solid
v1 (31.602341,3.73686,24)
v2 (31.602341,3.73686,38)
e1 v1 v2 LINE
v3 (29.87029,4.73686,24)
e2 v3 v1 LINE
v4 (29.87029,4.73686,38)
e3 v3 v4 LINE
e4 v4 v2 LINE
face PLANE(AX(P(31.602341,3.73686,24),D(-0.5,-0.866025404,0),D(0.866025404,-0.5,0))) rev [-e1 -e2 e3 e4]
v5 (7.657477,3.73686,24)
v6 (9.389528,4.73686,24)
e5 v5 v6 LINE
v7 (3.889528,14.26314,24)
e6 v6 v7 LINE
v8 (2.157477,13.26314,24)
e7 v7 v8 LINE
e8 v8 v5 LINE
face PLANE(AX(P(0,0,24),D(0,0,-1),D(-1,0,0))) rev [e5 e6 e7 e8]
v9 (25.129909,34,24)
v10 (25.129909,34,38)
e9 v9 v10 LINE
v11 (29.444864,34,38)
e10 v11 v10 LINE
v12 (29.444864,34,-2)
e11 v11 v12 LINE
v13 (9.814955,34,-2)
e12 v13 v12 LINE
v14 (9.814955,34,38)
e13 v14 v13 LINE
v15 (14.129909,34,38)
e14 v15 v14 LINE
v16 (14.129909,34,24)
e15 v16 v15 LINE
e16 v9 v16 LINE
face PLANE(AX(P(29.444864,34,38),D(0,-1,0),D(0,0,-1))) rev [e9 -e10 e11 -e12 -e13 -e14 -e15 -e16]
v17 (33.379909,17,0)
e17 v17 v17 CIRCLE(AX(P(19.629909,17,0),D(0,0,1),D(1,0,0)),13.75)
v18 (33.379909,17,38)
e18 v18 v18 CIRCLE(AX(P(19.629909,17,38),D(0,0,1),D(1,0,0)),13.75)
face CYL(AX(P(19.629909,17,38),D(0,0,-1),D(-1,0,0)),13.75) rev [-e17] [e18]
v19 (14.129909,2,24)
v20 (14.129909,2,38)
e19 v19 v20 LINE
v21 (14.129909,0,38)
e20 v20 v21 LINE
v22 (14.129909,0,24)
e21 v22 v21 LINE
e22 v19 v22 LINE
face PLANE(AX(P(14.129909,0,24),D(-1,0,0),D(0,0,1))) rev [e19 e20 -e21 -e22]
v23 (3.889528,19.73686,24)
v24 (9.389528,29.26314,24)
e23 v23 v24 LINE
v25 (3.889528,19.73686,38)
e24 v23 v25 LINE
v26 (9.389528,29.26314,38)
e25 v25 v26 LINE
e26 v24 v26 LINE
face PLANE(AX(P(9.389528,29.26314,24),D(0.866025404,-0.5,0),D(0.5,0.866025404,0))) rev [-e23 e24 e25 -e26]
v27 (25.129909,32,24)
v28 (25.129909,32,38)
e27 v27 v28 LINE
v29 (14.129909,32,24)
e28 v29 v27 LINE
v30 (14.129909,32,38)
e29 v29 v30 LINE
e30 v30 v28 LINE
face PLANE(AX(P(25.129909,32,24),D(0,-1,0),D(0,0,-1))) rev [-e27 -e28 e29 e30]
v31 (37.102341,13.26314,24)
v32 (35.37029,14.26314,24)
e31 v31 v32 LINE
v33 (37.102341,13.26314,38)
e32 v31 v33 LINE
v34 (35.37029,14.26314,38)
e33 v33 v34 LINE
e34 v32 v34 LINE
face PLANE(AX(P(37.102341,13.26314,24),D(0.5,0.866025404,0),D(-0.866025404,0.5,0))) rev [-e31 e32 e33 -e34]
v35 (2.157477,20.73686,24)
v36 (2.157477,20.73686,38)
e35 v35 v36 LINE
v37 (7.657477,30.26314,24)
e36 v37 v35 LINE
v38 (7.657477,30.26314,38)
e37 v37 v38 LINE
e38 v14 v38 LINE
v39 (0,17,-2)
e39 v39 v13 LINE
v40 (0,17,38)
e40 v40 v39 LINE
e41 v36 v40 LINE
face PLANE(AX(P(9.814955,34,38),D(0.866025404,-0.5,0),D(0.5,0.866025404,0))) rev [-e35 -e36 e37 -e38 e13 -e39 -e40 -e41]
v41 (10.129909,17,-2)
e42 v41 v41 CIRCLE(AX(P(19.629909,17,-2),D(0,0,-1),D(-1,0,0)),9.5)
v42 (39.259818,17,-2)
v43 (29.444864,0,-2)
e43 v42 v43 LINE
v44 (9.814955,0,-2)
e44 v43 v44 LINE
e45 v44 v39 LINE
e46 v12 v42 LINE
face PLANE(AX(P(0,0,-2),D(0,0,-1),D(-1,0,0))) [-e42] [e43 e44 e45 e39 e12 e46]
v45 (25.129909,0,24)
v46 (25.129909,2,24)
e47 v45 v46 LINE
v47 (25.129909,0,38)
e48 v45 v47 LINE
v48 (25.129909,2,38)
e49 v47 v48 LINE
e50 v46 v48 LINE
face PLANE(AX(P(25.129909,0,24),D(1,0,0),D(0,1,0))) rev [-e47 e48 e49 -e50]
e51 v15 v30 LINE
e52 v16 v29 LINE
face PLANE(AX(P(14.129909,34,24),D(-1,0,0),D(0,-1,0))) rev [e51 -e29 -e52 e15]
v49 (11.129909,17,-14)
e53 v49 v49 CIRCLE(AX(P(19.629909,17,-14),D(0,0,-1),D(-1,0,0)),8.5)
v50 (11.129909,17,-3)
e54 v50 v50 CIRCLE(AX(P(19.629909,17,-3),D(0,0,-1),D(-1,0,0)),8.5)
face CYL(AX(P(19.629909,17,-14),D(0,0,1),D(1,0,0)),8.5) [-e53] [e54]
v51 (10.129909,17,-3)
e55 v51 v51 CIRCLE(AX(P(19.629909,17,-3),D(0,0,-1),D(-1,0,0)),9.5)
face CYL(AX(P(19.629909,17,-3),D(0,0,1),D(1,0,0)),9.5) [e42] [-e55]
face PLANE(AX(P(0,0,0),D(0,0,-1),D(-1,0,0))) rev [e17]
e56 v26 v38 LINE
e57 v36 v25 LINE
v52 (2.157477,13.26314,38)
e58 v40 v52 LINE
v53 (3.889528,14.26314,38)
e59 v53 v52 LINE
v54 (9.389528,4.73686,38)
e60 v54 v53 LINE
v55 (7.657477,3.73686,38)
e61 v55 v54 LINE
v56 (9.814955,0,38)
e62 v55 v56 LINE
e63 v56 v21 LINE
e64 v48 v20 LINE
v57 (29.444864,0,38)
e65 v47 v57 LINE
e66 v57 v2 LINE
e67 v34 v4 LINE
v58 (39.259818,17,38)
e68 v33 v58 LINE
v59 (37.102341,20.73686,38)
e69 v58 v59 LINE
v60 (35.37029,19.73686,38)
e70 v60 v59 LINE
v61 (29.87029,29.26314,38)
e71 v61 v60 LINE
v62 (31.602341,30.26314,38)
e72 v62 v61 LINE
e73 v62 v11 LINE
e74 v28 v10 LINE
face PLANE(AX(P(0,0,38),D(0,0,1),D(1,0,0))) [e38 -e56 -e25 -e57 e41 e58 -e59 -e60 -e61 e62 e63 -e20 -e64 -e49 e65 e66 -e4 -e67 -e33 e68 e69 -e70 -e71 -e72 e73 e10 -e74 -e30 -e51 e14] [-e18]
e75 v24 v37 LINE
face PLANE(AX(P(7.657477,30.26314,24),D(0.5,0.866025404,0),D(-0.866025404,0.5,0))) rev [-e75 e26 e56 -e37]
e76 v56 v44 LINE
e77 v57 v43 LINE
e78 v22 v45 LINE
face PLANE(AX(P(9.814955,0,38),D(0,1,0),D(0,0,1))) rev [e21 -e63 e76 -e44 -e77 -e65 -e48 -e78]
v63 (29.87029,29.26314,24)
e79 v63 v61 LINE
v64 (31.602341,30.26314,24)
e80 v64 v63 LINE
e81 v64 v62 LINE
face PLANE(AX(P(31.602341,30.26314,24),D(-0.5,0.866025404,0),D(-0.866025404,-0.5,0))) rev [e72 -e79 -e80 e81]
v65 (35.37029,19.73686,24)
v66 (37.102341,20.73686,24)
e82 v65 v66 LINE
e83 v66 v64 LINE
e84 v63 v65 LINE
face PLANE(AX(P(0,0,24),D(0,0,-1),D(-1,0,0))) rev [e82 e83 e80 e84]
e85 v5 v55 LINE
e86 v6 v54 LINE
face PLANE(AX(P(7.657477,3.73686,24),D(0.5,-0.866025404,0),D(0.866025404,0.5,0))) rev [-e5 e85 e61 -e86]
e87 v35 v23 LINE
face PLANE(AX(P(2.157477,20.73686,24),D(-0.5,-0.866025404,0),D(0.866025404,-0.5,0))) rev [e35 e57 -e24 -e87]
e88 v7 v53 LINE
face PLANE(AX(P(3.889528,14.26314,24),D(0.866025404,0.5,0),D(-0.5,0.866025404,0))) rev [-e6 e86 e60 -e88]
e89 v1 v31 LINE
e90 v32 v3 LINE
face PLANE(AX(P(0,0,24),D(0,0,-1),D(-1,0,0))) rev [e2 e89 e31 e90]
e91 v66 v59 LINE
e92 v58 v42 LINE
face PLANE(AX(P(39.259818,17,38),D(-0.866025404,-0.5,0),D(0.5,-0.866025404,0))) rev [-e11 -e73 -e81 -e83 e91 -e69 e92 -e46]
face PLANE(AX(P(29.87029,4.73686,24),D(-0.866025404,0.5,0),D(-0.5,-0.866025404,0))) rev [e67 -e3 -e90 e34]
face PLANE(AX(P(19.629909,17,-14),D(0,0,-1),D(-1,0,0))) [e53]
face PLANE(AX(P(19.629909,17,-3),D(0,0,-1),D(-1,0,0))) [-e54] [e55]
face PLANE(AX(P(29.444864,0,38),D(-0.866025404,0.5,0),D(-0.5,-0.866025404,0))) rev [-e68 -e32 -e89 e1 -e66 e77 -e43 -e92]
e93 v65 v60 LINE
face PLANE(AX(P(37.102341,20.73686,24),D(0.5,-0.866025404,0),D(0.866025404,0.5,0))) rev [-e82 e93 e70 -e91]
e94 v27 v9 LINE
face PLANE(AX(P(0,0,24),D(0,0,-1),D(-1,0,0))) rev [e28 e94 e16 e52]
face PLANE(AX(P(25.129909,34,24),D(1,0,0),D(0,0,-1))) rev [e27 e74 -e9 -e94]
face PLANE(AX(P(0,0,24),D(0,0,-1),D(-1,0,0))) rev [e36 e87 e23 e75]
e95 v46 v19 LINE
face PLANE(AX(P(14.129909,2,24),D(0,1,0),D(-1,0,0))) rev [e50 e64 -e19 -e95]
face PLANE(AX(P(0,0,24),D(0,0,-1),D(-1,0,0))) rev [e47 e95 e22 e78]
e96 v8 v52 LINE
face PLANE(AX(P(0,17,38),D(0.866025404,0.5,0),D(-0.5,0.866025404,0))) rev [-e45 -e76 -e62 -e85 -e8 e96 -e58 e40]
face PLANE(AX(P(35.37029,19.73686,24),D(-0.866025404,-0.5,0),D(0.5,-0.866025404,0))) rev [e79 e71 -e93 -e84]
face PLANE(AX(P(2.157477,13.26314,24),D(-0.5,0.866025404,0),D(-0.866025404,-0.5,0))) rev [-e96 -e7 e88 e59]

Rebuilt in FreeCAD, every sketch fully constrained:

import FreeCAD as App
import Part
import Sketcher
from FreeCAD import Vector
Q = App.Units.Quantity


def add_polygon(sketch, points):
    """Adds a closed chain of lines whose ends are joined by coincident constraints."""
    first, n = sketch.GeometryCount, len(points)
    for a, b in zip(points, points[1:] + points[:1]):
        sketch.addGeometry(Part.LineSegment(App.Vector(*a, 0), App.Vector(*b, 0)), False)
    for i in range(n):
        sketch.addConstraint(Sketcher.Constraint("Coincident", first + i, 2, first + (i + 1) % n, 1))

doc = App.newDocument("Part")
params = doc.addObject("Spreadsheet::Sheet", "Params")
for row, (alias, value) in enumerate([
    ("sketch1_diameter", "27.5 mm"),
    ("pad1_length", "38 mm"),
    ("sketch2_width", "11 mm"),
    ("sketch2_height", "2 mm"),
    ("sketch2_length", "11 mm"),
    ("sketch2_length2", "2 mm"),
    ("pocket1_length", "14 mm"),
    ("pad2_length", "2 mm"),
    ("sketch4_diameter", "17 mm"),
    ("pad3_length", "12 mm"),
    ("sketch5_diameter", "19 mm"),
    ("pad4_length", "1 mm"),
], start=1):
    params.set(f"A{row}", alias)
    params.set(f"B{row}", "=" + value)
    params.setAlias(f"B{row}", alias)

body = doc.addObject("PartDesign::Body", "Body")

sketch1 = body.newObject("Sketcher::SketchObject", "Sketch")
sketch1.AttachmentSupport = (doc.getObject("XY_Plane"), [""])
sketch1.MapMode = "FlatFace"
add_polygon(sketch1, [(39, 17), (29, 34), (10, 34), (0, 17), (10, 0), (29, 0)])
sketch1.addGeometry(Part.Circle(Vector(20, 17, 0), Vector(0, 0, 1), 14), False)
sketch1.addConstraint(Sketcher.Constraint("Horizontal", 1))
sketch1.addConstraint(Sketcher.Constraint("Horizontal", 4))
sketch1.addConstraint(Sketcher.Constraint("PointOnObject", 2, 2, -2))
sketch1.addConstraint(Sketcher.Constraint("PointOnObject", 3, 2, -1))
sketch1.addConstraint(Sketcher.Constraint("Parallel", 0, 3))
sketch1.addConstraint(Sketcher.Constraint("Parallel", 2, 5))
sketch1.addConstraint(Sketcher.Constraint("Horizontal", 6, 3, 2, 2))
sketch1.addConstraint(Sketcher.Constraint("Horizontal", 2, 2, 5, 2))
sketch1.addConstraint(Sketcher.Constraint("Vertical", 1, 2, 3, 2))
sketch1.addConstraint(Sketcher.Constraint("Vertical", 0, 2, 4, 2))
sketch1.addConstraint(Sketcher.Constraint("Diameter", 6, Q("27.5 mm")))
sketch1.addConstraint(Sketcher.Constraint("Angle", 0, Q("120 deg")))
sketch1.addConstraint(Sketcher.Constraint("DistanceY", -1, 1, 6, 3, Q("17 mm")))
sketch1.addConstraint(Sketcher.Constraint("DistanceX", 1, 2, 1, 1, Q("19.629909 mm")))
sketch1.addConstraint(Sketcher.Constraint("DistanceX", -1, 1, 6, 3, Q("19.629909 mm")))
sketch1.setExpression("Constraints[16]", "Params.sketch1_diameter")
pad1 = body.newObject("PartDesign::Pad", "Pad")
pad1.Profile = sketch1
pad1.setExpression("Length", "Params.pad1_length")

sketch2 = body.newObject("Sketcher::SketchObject", "Sketch001")
sketch2.AttachmentSupport = (doc.getObject("XY_Plane"), [""])
sketch2.MapMode = "FlatFace"
sketch2.AttachmentOffset = App.Placement(Vector(0, 0, 38), App.Rotation())
add_polygon(sketch2, [(14.1, 2), (14.1, 0), (25.1, 0), (25.1, 2)])
add_polygon(sketch2, [(2.2, 13.3), (7.7, 3.7), (9.4, 4.7), (3.9, 14.3)])
add_polygon(sketch2, [(7.7, 30.3), (2.2, 20.7), (3.9, 19.7), (9.4, 29.3)])
add_polygon(sketch2, [(14.1, 34), (14.1, 32), (25.1, 32), (25.1, 34)])
add_polygon(sketch2, [(37.1, 20.7), (31.6, 30.3), (29.9, 29.3), (35.4, 19.7)])
add_polygon(sketch2, [(31.6, 3.7), (37.1, 13.3), (35.4, 14.3), (29.9, 4.7)])
sketch2.addConstraint(Sketcher.Constraint("Vertical", 0))
sketch2.addConstraint(Sketcher.Constraint("Horizontal", 1))
sketch2.addConstraint(Sketcher.Constraint("Vertical", 2))
sketch2.addConstraint(Sketcher.Constraint("Horizontal", 3))
sketch2.addConstraint(Sketcher.Constraint("Vertical", 12))
sketch2.addConstraint(Sketcher.Constraint("Horizontal", 13))
sketch2.addConstraint(Sketcher.Constraint("Vertical", 14))
sketch2.addConstraint(Sketcher.Constraint("Horizontal", 15))
sketch2.addConstraint(Sketcher.Constraint("PointOnObject", 0, 2, -1))
sketch2.addConstraint(Sketcher.Constraint("Perpendicular", 4, 5))
sketch2.addConstraint(Sketcher.Constraint("Perpendicular", 5, 6))
sketch2.addConstraint(Sketcher.Constraint("Perpendicular", 6, 7))
sketch2.addConstraint(Sketcher.Constraint("Perpendicular", 8, 9))
sketch2.addConstraint(Sketcher.Constraint("Perpendicular", 9, 10))
sketch2.addConstraint(Sketcher.Constraint("Perpendicular", 10, 11))
sketch2.addConstraint(Sketcher.Constraint("Perpendicular", 7, 16))
sketch2.addConstraint(Sketcher.Constraint("Perpendicular", 16, 17))
sketch2.addConstraint(Sketcher.Constraint("Perpendicular", 17, 18))
sketch2.addConstraint(Sketcher.Constraint("Perpendicular", 18, 19))
sketch2.addConstraint(Sketcher.Constraint("Perpendicular", 11, 20))
sketch2.addConstraint(Sketcher.Constraint("Perpendicular", 20, 21))
sketch2.addConstraint(Sketcher.Constraint("Perpendicular", 21, 22))
sketch2.addConstraint(Sketcher.Constraint("Perpendicular", 22, 23))
sketch2.addConstraint(Sketcher.Constraint("Horizontal", 11, 2, 16, 2))
sketch2.addConstraint(Sketcher.Constraint("Horizontal", 10, 2, 17, 2))
sketch2.addConstraint(Sketcher.Constraint("Horizontal", 9, 2, 18, 2))
sketch2.addConstraint(Sketcher.Constraint("Horizontal", 7, 2, 20, 2))
sketch2.addConstraint(Sketcher.Constraint("Horizontal", 6, 2, 21, 2))
sketch2.addConstraint(Sketcher.Constraint("Horizontal", 5, 2, 22, 2))
sketch2.addConstraint(Sketcher.Constraint("Vertical", 7, 2, 8, 2))
sketch2.addConstraint(Sketcher.Constraint("Vertical", 6, 2, 9, 2))
sketch2.addConstraint(Sketcher.Constraint("Vertical", 5, 2, 10, 2))
sketch2.addConstraint(Sketcher.Constraint("Vertical", 3, 2, 12, 2))
sketch2.addConstraint(Sketcher.Constraint("Vertical", 2, 2, 13, 2))
sketch2.addConstraint(Sketcher.Constraint("Vertical", 19, 2, 20, 2))
sketch2.addConstraint(Sketcher.Constraint("Vertical", 18, 2, 21, 2))
sketch2.addConstraint(Sketcher.Constraint("Equal", 2, 12))
sketch2.addConstraint(Sketcher.Constraint("DistanceX", 1, 1, 1, 2, Q("11 mm")))
sketch2.addConstraint(Sketcher.Constraint("DistanceY", 0, 2, 0, 1, Q("2 mm")))
sketch2.addConstraint(Sketcher.Constraint("Angle", 4, Q("-60 deg")))
sketch2.addConstraint(Sketcher.Constraint("Distance", 4, Q("11 mm")))
sketch2.addConstraint(Sketcher.Constraint("Distance", 5, Q("2 mm")))
sketch2.addConstraint(Sketcher.Constraint("DistanceY", -1, 1, 12, 2, Q("32 mm")))
sketch2.addConstraint(Sketcher.Constraint("DistanceY", 5, 2, 8, 2, Q("16 mm")))
sketch2.addConstraint(Sketcher.Constraint("DistanceX", -1, 1, 0, 2, Q("14.129909 mm")))
sketch2.addConstraint(Sketcher.Constraint("DistanceY", -1, 1, 4, 2, Q("3.73686 mm")))
sketch2.addConstraint(Sketcher.Constraint("DistanceX", -1, 1, 5, 2, Q("9.389528 mm")))
sketch2.addConstraint(Sketcher.Constraint("DistanceX", -1, 1, 16, 2, Q("31.602341 mm")))
sketch2.setExpression("Constraints[61]", "Params.sketch2_width")
sketch2.setExpression("Constraints[62]", "Params.sketch2_height")
sketch2.setExpression("Constraints[64]", "Params.sketch2_length")
sketch2.setExpression("Constraints[65]", "Params.sketch2_length2")
pocket1 = body.newObject("PartDesign::Pocket", "Pocket")
pocket1.Profile = sketch2
pocket1.setExpression("Length", "Params.pocket1_length")

sketch3 = body.newObject("Sketcher::SketchObject", "Sketch002")
sketch3.AttachmentSupport = (doc.getObject("XY_Plane"), [""])
sketch3.MapMode = "FlatFace"
add_polygon(sketch3, [(39, 17), (29, 0), (10, 0), (0, 17), (10, 34), (29, 34)])
sketch3.addConstraint(Sketcher.Constraint("Horizontal", 1))
sketch3.addConstraint(Sketcher.Constraint("Horizontal", 4))
sketch3.addConstraint(Sketcher.Constraint("PointOnObject", 0, 2, -1))
sketch3.addConstraint(Sketcher.Constraint("PointOnObject", 2, 2, -2))
sketch3.addConstraint(Sketcher.Constraint("Parallel", 0, 3))
sketch3.addConstraint(Sketcher.Constraint("Parallel", 2, 5))
sketch3.addConstraint(Sketcher.Constraint("Horizontal", 2, 2, 5, 2))
sketch3.addConstraint(Sketcher.Constraint("Vertical", 1, 2, 3, 2))
sketch3.addConstraint(Sketcher.Constraint("Vertical", 0, 2, 4, 2))
sketch3.addConstraint(Sketcher.Constraint("Angle", 0, Q("-120 deg")))
sketch3.addConstraint(Sketcher.Constraint("DistanceY", -1, 1, 2, 2, Q("17 mm")))
sketch3.addConstraint(Sketcher.Constraint("DistanceX", 1, 2, 1, 1, Q("19.629909 mm")))
pad2 = body.newObject("PartDesign::Pad", "Pad001")
pad2.Profile = sketch3
pad2.setExpression("Length", "Params.pad2_length")
pad2.Reversed = True

sketch4 = body.newObject("Sketcher::SketchObject", "Sketch003")
sketch4.AttachmentSupport = (doc.getObject("XY_Plane"), [""])
sketch4.MapMode = "FlatFace"
sketch4.AttachmentOffset = App.Placement(Vector(0, 0, -2), App.Rotation())
sketch4.addGeometry(Part.Circle(Vector(20, 17, 0), Vector(0, 0, 1), 8), False)
sketch4.addConstraint(Sketcher.Constraint("Diameter", 0, Q("17 mm")))
sketch4.addConstraint(Sketcher.Constraint("DistanceY", -1, 1, 0, 3, Q("17 mm")))
sketch4.addConstraint(Sketcher.Constraint("DistanceX", -1, 1, 0, 3, Q("19.629909 mm")))
sketch4.setExpression("Constraints[0]", "Params.sketch4_diameter")
pad3 = body.newObject("PartDesign::Pad", "Pad002")
pad3.Profile = sketch4
pad3.setExpression("Length", "Params.pad3_length")
pad3.Reversed = True

sketch5 = body.newObject("Sketcher::SketchObject", "Sketch004")
sketch5.AttachmentSupport = (doc.getObject("XY_Plane"), [""])
sketch5.MapMode = "FlatFace"
sketch5.AttachmentOffset = App.Placement(Vector(0, 0, -2), App.Rotation())
sketch5.addGeometry(Part.Circle(Vector(20, 17, 0), Vector(0, 0, 1), 10), False)
sketch5.addConstraint(Sketcher.Constraint("Diameter", 0, Q("19 mm")))
sketch5.addConstraint(Sketcher.Constraint("DistanceY", -1, 1, 0, 3, Q("17 mm")))
sketch5.addConstraint(Sketcher.Constraint("DistanceX", -1, 1, 0, 3, Q("19.629909 mm")))
sketch5.setExpression("Constraints[0]", "Params.sketch5_diameter")
pad4 = body.newObject("PartDesign::Pad", "Pad003")
pad4.Profile = sketch5
pad4.setExpression("Length", "Params.pad4_length")
pad4.Reversed = True

doc.recompute()
